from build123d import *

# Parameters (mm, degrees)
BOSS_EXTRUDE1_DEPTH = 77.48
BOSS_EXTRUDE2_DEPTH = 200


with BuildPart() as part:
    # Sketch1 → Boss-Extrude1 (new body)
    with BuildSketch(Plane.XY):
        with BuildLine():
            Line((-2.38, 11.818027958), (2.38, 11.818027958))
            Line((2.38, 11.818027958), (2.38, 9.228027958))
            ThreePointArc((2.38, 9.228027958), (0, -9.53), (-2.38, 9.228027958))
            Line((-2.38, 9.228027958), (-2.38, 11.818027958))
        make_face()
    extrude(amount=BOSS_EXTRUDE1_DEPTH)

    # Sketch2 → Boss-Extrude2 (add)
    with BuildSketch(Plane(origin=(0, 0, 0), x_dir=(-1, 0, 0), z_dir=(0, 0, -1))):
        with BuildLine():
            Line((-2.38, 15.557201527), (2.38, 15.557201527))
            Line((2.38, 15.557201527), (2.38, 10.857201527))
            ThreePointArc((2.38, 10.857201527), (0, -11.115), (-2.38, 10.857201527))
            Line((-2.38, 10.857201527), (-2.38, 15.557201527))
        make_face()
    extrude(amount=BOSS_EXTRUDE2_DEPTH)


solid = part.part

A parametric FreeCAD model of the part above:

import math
import FreeCAD as App
import Part
import Sketcher

doc = App.newDocument("Part")
params = doc.addObject("Spreadsheet::Sheet", "Params")
for row, (alias, value) in enumerate([
    ("sketch1_radius", "9.53 mm"),
    ("sketch1_width", "4.76 mm"),
    ("sketch1_height", "2.59 mm"),
    ("pad1_length", "77.48 mm"),
    ("sketch2_height", "4.7 mm"),
    ("sketch2_width", "4.76 mm"),
    ("pad2_length", "200 mm"),
], start=1):
    params.set(f"A{row}", alias)
    params.set(f"B{row}", "=" + value)
    params.setAlias(f"B{row}", alias)

body = doc.addObject("PartDesign::Body", "Body")

sketch1 = body.newObject("Sketcher::SketchObject", "Sketch")
sketch1.AttachmentSupport = (doc.getObject("XY_Plane"), [""])
sketch1.MapMode = "FlatFace"
sketch1.addGeometry([
    Part.LineSegment(App.Vector(2.38, 11.818028, 0), App.Vector(-2.38, 11.818028, 0)),
    Part.LineSegment(App.Vector(-2.38, 11.818028, 0), App.Vector(-2.38, 9.228028, 0)),
    Part.ArcOfCircle(Part.Circle(App.Vector(0, 0, 0), App.Vector(0, 0, 1), 9.53), math.radians(104.461989), math.radians(435.538011)),
    Part.LineSegment(App.Vector(2.38, 9.228028, 0), App.Vector(2.38, 11.818028, 0)),
], False)
sketch1.addConstraint([
    Sketcher.Constraint("Coincident", 0, 2, 1, 1),
    Sketcher.Constraint("Coincident", 1, 2, 2, 1),
    Sketcher.Constraint("Coincident", 2, 2, 3, 1),
    Sketcher.Constraint("Coincident", 3, 2, 0, 1),
    Sketcher.Constraint("Horizontal", 0),
    Sketcher.Constraint("Vertical", 1),
    Sketcher.Constraint("Vertical", 3),
    Sketcher.Constraint("Coincident", 2, 3, -1, 1),
    Sketcher.Constraint("Horizontal", 1, 2, 2, 2),
    Sketcher.Constraint("Radius", 2, 9.53),
    Sketcher.Constraint("DistanceX", 0, 2, 0, 1, 4.76),
    Sketcher.Constraint("DistanceY", 1, 2, 1, 1, 2.59),
])
sketch1.setExpression("Constraints[9]", "Params.sketch1_radius")
sketch1.setExpression("Constraints[10]", "Params.sketch1_width")
sketch1.setExpression("Constraints[11]", "Params.sketch1_height")
pad1 = body.newObject("PartDesign::Pad", "Pad")
pad1.Profile = sketch1
pad1.setExpression("Length", "Params.pad1_length")

sketch2 = body.newObject("Sketcher::SketchObject", "Sketch001")
sketch2.AttachmentSupport = (doc.getObject("XY_Plane"), [""])
sketch2.MapMode = "FlatFace"
sketch2.addGeometry([
    Part.LineSegment(App.Vector(-2.38, 15.557202, 0), App.Vector(2.38, 15.557202, 0)),
    Part.LineSegment(App.Vector(2.38, 15.557202, 0), App.Vector(2.38, 10.857202, 0)),
    Part.ArcOfCircle(Part.Circle(App.Vector(0, 0, 0), App.Vector(0, 0, 1), 11.115), math.radians(102.364201), math.radians(437.635799)),
    Part.LineSegment(App.Vector(-2.38, 10.857202, 0), App.Vector(-2.38, 15.557202, 0)),
], False)
sketch2.addConstraint([
    Sketcher.Constraint("Coincident", 0, 2, 1, 1),
    Sketcher.Constraint("Coincident", 1, 2, 2, 2),
    Sketcher.Constraint("Coincident", 2, 1, 3, 1),
    Sketcher.Constraint("Coincident", 3, 2, 0, 1),
    Sketcher.Constraint("Horizontal", 0),
    Sketcher.Constraint("Vertical", 1),
    Sketcher.Constraint("Vertical", 3),
    Sketcher.Constraint("Coincident", 2, 3, -1, 1),
    Sketcher.Constraint("Horizontal", 1, 2, 2, 1),
    Sketcher.Constraint("DistanceY", 1, 2, 1, 1, 4.7),
    Sketcher.Constraint("Radius", 2, 11.115),
    Sketcher.Constraint("DistanceX", 0, 1, 0, 2, 4.76),
])
sketch2.setExpression("Constraints[9]", "Params.sketch2_height")
sketch2.setExpression("Constraints[11]", "Params.sketch2_width")
pad2 = body.newObject("PartDesign::Pad", "Pad001")
pad2.Profile = sketch2
pad2.setExpression("Length", "Params.pad2_length")
pad2.Reversed = True

doc.recompute()
